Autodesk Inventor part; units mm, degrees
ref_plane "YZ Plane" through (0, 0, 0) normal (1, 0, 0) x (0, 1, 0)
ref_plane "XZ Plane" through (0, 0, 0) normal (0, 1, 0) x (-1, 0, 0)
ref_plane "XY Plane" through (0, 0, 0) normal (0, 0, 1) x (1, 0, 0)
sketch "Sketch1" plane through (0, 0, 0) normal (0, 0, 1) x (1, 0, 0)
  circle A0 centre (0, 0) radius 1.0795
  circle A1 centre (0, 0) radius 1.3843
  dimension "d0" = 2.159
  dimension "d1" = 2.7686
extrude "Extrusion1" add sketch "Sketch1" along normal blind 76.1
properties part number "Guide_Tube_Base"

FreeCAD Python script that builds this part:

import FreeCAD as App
import Part
import Sketcher
from FreeCAD import Vector
Q = App.Units.Quantity

doc = App.newDocument("Part")
body = doc.addObject("PartDesign::Body", "Body")

# Sketch on XY plane
sketch1 = body.newObject("Sketcher::SketchObject", "Sketch")
sketch1.AttachmentSupport = (doc.getObject("XY_Plane"), [""])
sketch1.MapMode = "FlatFace"
sketch1.addGeometry([
    Part.Circle(Vector(0, 0, 0), Vector(0, 0, 1), 1.4),
    Part.Circle(Vector(0, 0, 0), Vector(0, 0, 1), 1.1),
], False)
sketch1.addConstraint([
    Sketcher.Constraint("Coincident", 0, 3, -1, 1),
    Sketcher.Constraint("Coincident", 1, 3, -1, 1),
    Sketcher.Constraint("Diameter", 0, Q("0.109 in")),
    Sketcher.Constraint("Diameter", 1, Q("0.085 in")),
])
pad1 = body.newObject("PartDesign::Pad", "Pad")
pad1.Profile = sketch1
pad1.Length = 76.1

doc.recompute()
